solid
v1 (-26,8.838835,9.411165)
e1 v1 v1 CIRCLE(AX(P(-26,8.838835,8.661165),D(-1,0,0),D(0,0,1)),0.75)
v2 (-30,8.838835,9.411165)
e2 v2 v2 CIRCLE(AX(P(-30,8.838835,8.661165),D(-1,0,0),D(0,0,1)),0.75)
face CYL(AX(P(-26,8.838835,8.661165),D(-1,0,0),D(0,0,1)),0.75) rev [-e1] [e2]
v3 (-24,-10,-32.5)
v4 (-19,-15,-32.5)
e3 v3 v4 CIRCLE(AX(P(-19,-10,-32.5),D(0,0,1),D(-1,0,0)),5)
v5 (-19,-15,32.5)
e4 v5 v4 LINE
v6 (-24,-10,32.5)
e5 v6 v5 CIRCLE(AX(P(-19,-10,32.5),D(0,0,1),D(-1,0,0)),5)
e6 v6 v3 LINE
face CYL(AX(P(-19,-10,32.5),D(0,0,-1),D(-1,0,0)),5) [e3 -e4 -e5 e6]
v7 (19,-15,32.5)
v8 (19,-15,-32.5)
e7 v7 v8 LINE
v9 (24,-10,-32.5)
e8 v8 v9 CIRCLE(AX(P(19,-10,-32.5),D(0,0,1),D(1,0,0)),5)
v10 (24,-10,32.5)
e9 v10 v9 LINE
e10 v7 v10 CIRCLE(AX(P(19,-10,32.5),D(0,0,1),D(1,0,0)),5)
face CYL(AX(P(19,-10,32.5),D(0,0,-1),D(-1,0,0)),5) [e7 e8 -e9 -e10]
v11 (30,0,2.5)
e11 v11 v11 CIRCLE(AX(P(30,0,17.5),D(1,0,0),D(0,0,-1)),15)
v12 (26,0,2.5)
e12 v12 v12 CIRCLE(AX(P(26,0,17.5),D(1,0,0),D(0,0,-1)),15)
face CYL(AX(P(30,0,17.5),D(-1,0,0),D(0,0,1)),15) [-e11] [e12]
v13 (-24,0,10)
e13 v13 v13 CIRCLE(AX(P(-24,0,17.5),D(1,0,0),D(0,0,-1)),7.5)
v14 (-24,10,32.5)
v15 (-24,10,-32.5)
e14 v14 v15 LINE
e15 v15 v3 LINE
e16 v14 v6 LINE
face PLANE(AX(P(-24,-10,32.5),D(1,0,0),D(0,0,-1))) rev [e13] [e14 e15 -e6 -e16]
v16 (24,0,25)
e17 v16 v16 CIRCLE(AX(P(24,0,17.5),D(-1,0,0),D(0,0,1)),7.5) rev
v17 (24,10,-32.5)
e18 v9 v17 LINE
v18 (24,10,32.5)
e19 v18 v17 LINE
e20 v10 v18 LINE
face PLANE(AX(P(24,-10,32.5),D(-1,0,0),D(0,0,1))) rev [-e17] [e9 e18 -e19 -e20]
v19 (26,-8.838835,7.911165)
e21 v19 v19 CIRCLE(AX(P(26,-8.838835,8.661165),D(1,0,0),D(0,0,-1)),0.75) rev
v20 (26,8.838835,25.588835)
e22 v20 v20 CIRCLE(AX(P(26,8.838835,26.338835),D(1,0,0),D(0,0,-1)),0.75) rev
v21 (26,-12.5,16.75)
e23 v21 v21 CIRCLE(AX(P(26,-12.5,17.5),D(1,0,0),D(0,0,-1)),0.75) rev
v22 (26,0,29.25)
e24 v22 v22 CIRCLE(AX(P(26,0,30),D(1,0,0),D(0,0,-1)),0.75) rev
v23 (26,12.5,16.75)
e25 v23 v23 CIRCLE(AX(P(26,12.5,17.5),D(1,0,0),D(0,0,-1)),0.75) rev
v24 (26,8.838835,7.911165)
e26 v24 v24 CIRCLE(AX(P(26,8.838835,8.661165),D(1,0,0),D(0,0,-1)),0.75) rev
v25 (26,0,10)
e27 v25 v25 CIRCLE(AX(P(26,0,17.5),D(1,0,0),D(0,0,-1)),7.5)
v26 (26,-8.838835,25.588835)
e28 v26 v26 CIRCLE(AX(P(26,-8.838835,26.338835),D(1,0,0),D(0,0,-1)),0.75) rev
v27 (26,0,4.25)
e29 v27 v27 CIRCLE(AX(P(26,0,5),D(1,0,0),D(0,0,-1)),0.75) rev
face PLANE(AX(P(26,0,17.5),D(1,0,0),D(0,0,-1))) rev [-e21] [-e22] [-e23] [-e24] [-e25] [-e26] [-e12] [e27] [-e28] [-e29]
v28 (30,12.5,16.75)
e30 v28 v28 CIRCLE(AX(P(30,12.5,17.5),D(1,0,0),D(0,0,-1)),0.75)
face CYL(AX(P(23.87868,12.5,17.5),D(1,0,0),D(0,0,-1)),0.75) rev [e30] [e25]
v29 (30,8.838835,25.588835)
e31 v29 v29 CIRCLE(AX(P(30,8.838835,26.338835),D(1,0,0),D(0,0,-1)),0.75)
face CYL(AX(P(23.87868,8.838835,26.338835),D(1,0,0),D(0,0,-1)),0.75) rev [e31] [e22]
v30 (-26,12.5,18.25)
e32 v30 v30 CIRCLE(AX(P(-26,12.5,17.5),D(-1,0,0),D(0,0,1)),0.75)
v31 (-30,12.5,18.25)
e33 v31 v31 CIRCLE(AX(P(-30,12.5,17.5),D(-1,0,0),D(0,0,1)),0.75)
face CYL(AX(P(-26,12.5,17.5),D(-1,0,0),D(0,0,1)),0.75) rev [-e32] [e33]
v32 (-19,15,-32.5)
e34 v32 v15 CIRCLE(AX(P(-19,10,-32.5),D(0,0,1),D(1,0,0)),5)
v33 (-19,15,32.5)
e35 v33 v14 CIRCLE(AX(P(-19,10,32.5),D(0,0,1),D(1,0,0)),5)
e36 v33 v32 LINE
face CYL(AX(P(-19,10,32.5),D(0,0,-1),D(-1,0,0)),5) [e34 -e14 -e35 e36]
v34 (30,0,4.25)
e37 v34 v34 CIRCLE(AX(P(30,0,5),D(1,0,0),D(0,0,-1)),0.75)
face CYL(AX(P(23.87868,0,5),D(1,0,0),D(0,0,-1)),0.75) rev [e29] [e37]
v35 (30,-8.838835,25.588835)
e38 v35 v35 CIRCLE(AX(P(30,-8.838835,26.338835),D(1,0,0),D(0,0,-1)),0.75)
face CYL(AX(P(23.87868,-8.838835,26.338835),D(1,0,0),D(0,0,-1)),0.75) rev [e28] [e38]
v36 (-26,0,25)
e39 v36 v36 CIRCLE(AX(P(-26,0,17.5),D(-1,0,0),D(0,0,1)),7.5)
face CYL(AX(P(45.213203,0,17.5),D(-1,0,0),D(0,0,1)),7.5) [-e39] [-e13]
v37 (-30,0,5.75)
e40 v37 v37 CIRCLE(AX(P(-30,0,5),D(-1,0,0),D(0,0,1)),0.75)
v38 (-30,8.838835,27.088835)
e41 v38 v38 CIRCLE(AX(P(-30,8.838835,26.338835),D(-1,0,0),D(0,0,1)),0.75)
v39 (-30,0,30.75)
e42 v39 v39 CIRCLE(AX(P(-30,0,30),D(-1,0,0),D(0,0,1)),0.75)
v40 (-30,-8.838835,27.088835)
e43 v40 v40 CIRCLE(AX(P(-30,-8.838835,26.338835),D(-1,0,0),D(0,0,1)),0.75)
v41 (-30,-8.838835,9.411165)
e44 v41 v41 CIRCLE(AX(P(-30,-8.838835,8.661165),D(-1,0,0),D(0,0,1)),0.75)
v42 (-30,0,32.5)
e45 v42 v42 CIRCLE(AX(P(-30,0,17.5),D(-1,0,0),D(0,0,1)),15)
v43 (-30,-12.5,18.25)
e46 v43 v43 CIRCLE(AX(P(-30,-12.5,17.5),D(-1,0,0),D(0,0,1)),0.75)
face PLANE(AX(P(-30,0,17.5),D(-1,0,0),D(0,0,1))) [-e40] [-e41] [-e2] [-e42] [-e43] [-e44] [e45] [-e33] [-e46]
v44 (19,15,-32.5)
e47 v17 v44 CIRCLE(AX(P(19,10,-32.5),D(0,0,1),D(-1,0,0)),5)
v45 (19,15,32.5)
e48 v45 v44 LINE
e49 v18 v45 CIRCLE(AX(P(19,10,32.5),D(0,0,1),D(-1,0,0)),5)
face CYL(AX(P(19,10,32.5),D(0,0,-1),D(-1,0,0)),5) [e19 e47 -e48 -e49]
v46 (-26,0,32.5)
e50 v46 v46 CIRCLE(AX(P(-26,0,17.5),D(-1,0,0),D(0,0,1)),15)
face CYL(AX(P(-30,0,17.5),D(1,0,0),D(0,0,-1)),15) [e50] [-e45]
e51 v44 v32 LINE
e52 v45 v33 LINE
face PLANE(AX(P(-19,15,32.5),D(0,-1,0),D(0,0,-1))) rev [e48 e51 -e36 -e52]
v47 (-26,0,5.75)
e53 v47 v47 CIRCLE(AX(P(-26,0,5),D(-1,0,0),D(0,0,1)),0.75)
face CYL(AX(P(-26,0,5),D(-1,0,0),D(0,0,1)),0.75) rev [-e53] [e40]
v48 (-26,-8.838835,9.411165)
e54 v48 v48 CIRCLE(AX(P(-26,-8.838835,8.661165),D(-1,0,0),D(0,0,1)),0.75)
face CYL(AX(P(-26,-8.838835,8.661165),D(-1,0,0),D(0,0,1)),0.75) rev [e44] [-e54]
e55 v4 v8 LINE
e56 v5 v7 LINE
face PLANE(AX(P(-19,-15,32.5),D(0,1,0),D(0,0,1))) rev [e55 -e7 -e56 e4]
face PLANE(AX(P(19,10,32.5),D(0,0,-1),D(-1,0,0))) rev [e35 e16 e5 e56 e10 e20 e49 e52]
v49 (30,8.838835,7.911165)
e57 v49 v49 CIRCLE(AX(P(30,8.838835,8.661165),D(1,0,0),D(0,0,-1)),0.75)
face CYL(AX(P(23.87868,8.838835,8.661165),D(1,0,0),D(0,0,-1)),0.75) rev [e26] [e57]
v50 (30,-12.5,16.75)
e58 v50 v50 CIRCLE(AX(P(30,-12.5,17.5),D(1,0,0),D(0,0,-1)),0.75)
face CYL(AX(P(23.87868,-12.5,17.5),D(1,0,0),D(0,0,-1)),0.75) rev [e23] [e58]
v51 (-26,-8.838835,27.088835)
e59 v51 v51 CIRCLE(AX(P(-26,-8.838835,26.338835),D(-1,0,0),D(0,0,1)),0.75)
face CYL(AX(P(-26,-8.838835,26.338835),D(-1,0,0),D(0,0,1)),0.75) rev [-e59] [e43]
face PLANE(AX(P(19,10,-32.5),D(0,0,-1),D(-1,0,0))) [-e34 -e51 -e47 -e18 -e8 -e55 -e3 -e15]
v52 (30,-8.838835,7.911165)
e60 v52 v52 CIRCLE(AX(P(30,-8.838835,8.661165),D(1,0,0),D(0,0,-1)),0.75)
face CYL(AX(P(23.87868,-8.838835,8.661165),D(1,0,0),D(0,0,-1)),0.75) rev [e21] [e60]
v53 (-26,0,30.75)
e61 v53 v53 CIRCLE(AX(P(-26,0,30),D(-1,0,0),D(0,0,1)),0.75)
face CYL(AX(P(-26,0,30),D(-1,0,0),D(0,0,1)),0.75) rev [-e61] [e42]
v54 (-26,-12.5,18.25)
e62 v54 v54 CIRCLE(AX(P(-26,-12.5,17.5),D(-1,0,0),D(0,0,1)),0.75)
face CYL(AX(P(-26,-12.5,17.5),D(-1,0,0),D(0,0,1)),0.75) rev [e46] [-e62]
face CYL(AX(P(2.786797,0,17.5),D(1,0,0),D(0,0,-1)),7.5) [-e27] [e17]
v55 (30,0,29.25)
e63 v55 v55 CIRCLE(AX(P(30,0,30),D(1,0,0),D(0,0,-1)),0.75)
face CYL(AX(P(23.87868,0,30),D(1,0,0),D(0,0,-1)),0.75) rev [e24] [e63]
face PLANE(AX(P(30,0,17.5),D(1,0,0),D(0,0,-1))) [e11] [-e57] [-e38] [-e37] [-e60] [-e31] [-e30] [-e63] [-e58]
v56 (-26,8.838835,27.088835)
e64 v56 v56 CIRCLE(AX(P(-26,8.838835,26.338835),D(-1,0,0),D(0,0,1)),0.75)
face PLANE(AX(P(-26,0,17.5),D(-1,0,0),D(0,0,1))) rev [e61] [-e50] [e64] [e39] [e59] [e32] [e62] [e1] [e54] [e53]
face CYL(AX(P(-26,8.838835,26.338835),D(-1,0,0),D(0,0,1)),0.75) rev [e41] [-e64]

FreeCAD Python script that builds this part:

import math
import FreeCAD as App
import Part
import Sketcher

V = App.Vector

doc = App.newDocument("Part")
body = doc.addObject("PartDesign::Body", "Body")

# Sketch on XY plane
sketch1 = doc.addObject("Sketcher::SketchObject", "Sketch")
body.addObject(sketch1)
sketch1.AttachmentSupport = (doc.XY_Plane, [""])
sketch1.MapMode = "FlatFace"
sketch1.addGeometry([
    Part.LineSegment(V(-19, -15, 0), V(19, -15, 0)),  # 0
    Part.ArcOfCircle(Part.Circle(V(19, -10, 0), V(0, 0, 1), 5), math.radians(-90), math.radians(0)),  # 1
    Part.LineSegment(V(24, -10, 0), V(24, 10, 0)),  # 2
    Part.ArcOfCircle(Part.Circle(V(19, 10, 0), V(0, 0, 1), 5), math.radians(0), math.radians(90)),  # 3
    Part.LineSegment(V(19, 15, 0), V(-19, 15, 0)),  # 4
    Part.ArcOfCircle(Part.Circle(V(-19, 10, 0), V(0, 0, 1), 5), math.radians(90), math.radians(180)),  # 5
    Part.LineSegment(V(-24, 10, 0), V(-24, -10, 0)),  # 6
    Part.ArcOfCircle(Part.Circle(V(-19, -10, 0), V(0, 0, 1), 5), math.radians(180), math.radians(270)),  # 7
], False)
sketch1.addConstraint([
    Sketcher.Constraint("Tangent", 0, 2, 1, 1),
    Sketcher.Constraint("Tangent", 1, 2, 2, 1),
    Sketcher.Constraint("Tangent", 2, 2, 3, 1),
    Sketcher.Constraint("Tangent", 3, 2, 4, 1),
    Sketcher.Constraint("Tangent", 4, 2, 5, 1),
    Sketcher.Constraint("Tangent", 5, 2, 6, 1),
    Sketcher.Constraint("Tangent", 6, 2, 7, 1),
    Sketcher.Constraint("Tangent", 7, 2, 0, 1),
    Sketcher.Constraint("Horizontal", 0),
    Sketcher.Constraint("Vertical", 2),
    Sketcher.Constraint("Horizontal", 4),
    Sketcher.Constraint("Vertical", 6),
    Sketcher.Constraint("Equal", 1, 3),
    Sketcher.Constraint("Equal", 3, 5),
    Sketcher.Constraint("Equal", 5, 7),
    Sketcher.Constraint("Symmetric", 1, 3, 5, 3, -1, 1),
    Sketcher.Constraint("Radius", 1, 5.0),
    Sketcher.Constraint("DistanceX", 0, 1, 0, 2, 38.0),
    Sketcher.Constraint("DistanceY", 2, 1, 2, 2, 20.0),
])
pad1 = doc.addObject("PartDesign::Pad", "Pad")
body.addObject(pad1)
pad1.Profile = sketch1
pad1.Length = 65
pad1.Midplane = True
body2 = doc.addObject("PartDesign::Body", "Body001")

# Sketch on YZ plane
sketch2 = doc.addObject("Sketcher::SketchObject", "Sketch001")
body2.addObject(sketch2)
sketch2.AttachmentSupport = (doc.getObject("YZ_Plane001"), [""])
sketch2.MapMode = "FlatFace"
sketch2.AttachmentOffset = App.Placement(V(0, 0, 26), App.Rotation())
sketch2.addGeometry(Part.Circle(V(0, 18, 0), V(0, 0, 1), 15), False)
sketch2.addConstraint([
    Sketcher.Constraint("PointOnObject", 0, 3, -2),
    Sketcher.Constraint("Diameter", 0, 30.0),
    Sketcher.Constraint("DistanceY", -1, 1, 0, 3, 17.5),
])
pad2 = doc.addObject("PartDesign::Pad", "Pad001")
body2.addObject(pad2)
pad2.Profile = sketch2
pad2.Length = 4
body.AllowCompound = True
doc.recompute()

boolean = doc.addObject("PartDesign::Boolean", "Boolean")
body.addObject(boolean)
boolean.Type = "Fuse"
boolean.addObjects([body2])

# Sketch on YZ plane
sketch3 = doc.addObject("Sketcher::SketchObject", "Sketch002")
body.addObject(sketch3)
sketch3.AttachmentSupport = (doc.YZ_Plane, [""])
sketch3.MapMode = "FlatFace"
sketch3.AttachmentOffset = App.Placement(V(0, 0, 26), App.Rotation())
sketch3.addGeometry(Part.Circle(V(0, 18, 0), V(0, 0, 1), 8), False)
sketch3.addConstraint([
    Sketcher.Constraint("PointOnObject", 0, 3, -2),
    Sketcher.Constraint("Diameter", 0, 15.0),
    Sketcher.Constraint("DistanceY", -1, 1, 0, 3, 17.5),
])
pad3 = doc.addObject("PartDesign::Pad", "Pad002")
body.addObject(pad3)
pad3.Profile = sketch3
pad3.Length = 50
pad3.Reversed = True
doc.recompute()

mirrored = doc.addObject("PartDesign::Mirrored", "Mirrored")
body.addObject(mirrored)
mirrored.Originals = [pad3]
mirrored.MirrorPlane = (doc.YZ_Plane, [""])
body.Tip = mirrored

# Sketch on YZ plane
sketch4 = doc.addObject("Sketcher::SketchObject", "Sketch003")
body.addObject(sketch4)
sketch4.AttachmentSupport = (doc.YZ_Plane, [""])
sketch4.MapMode = "FlatFace"
sketch4.AttachmentOffset = App.Placement(V(0, 0, -26), App.Rotation())
sketch4.addGeometry(Part.Circle(V(0, 18, 0), V(0, 0, 1), 15), False)
sketch4.addConstraint([
    Sketcher.Constraint("PointOnObject", 0, 3, -2),
    Sketcher.Constraint("Diameter", 0, 30.0),
    Sketcher.Constraint("DistanceY", -1, 1, 0, 3, 17.5),
])
pad4 = doc.addObject("PartDesign::Pad", "Pad003")
body.addObject(pad4)
pad4.Profile = sketch4
pad4.Length = 4
pad4.Reversed = True

# Sketch on YZ plane
sketch5 = doc.addObject("Sketcher::SketchObject", "Sketch004")
body.addObject(sketch5)
sketch5.AttachmentSupport = (doc.YZ_Plane, [""])
sketch5.MapMode = "FlatFace"
sketch5.AttachmentOffset = App.Placement(V(0, 0, 30), App.Rotation())
sketch5.addGeometry([
    Part.Circle(V(12.5, 17.5, 0), V(0, 0, 1), 0.8),  # 0
    Part.Circle(V(8.8, 8.7, 0), V(0, 0, 1), 0.8),  # 1
    Part.Circle(V(0, 5, 0), V(0, 0, 1), 0.8),  # 2
    Part.Circle(V(-8.8, 8.7, 0), V(0, 0, 1), 0.8),  # 3
    Part.Circle(V(-12.5, 17.5, 0), V(0, 0, 1), 0.8),  # 4
    Part.Circle(V(-8.8, 26.3, 0), V(0, 0, 1), 0.8),  # 5
    Part.Circle(V(0, 30, 0), V(0, 0, 1), 0.8),  # 6
    Part.Circle(V(8.8, 26.3, 0), V(0, 0, 1), 0.8),  # 7
], False)
sketch5.addConstraint([
    Sketcher.Constraint("Equal", 0, 1),
    Sketcher.Constraint("Equal", 1, 2),
    Sketcher.Constraint("Equal", 2, 3),
    Sketcher.Constraint("Equal", 3, 4),
    Sketcher.Constraint("Equal", 4, 5),
    Sketcher.Constraint("Equal", 5, 6),
    Sketcher.Constraint("Equal", 6, 7),
    Sketcher.Constraint("Symmetric", 1, 3, 3, 3, -2),
    Sketcher.Constraint("Symmetric", 0, 3, 4, 3, -2),
    Sketcher.Constraint("Symmetric", 5, 3, 7, 3, -2),
    Sketcher.Constraint("PointOnObject", 2, 3, -2),
    Sketcher.Constraint("PointOnObject", 6, 3, -2),
    Sketcher.Constraint("Vertical", 3, 3, 5, 3),
    Sketcher.Constraint("Diameter", 0, 1.5),
    Sketcher.Constraint("DistanceY", -1, 1, 2, 3, 5.0),
    Sketcher.Constraint("DistanceY", -1, 1, 6, 3, 30.0),
    Sketcher.Constraint("DistanceX", 4, 3, 0, 3, 25.0),
    Sketcher.Constraint("DistanceY", -1, 1, 0, 3, 17.5),
    Sketcher.Constraint("DistanceX", 3, 3, 1, 3, 17.67767),
    Sketcher.Constraint("DistanceY", 3, 3, 5, 3, 17.67767),
    Sketcher.Constraint("DistanceY", -1, 1, 1, 3, 8.661165),
])
pocket1 = doc.addObject("PartDesign::Pocket", "Pocket")
body.addObject(pocket1)
pocket1.Profile = sketch5
pocket1.Length = 4

# Sketch on YZ plane
sketch6 = doc.addObject("Sketcher::SketchObject", "Sketch005")
body.addObject(sketch6)
sketch6.AttachmentSupport = (doc.YZ_Plane, [""])
sketch6.MapMode = "FlatFace"
sketch6.AttachmentOffset = App.Placement(V(0, 0, -30), App.Rotation())
sketch6.addGeometry([
    Part.Circle(V(12.5, 17.5, 0), V(0, 0, 1), 0.8),  # 0
    Part.Circle(V(8.8, 26.3, 0), V(0, 0, 1), 0.8),  # 1
    Part.Circle(V(0, 30, 0), V(0, 0, 1), 0.8),  # 2
    Part.Circle(V(-8.8, 26.3, 0), V(0, 0, 1), 0.8),  # 3
    Part.Circle(V(-12.5, 17.5, 0), V(0, 0, 1), 0.8),  # 4
    Part.Circle(V(-8.8, 8.7, 0), V(0, 0, 1), 0.8),  # 5
    Part.Circle(V(0, 5, 0), V(0, 0, 1), 0.8),  # 6
    Part.Circle(V(8.8, 8.7, 0), V(0, 0, 1), 0.8),  # 7
], False)
sketch6.addConstraint([
    Sketcher.Constraint("Equal", 0, 1),
    Sketcher.Constraint("Equal", 1, 2),
    Sketcher.Constraint("Equal", 2, 3),
    Sketcher.Constraint("Equal", 3, 4),
    Sketcher.Constraint("Equal", 4, 5),
    Sketcher.Constraint("Equal", 5, 6),
    Sketcher.Constraint("Equal", 6, 7),
    Sketcher.Constraint("Symmetric", 1, 3, 3, 3, -2),
    Sketcher.Constraint("Symmetric", 0, 3, 4, 3, -2),
    Sketcher.Constraint("Symmetric", 5, 3, 7, 3, -2),
    Sketcher.Constraint("PointOnObject", 2, 3, -2),
    Sketcher.Constraint("PointOnObject", 6, 3, -2),
    Sketcher.Constraint("Vertical", 3, 3, 5, 3),
    Sketcher.Constraint("Diameter", 0, 1.5),
    Sketcher.Constraint("DistanceY", -1, 1, 2, 3, 30.0),
    Sketcher.Constraint("DistanceY", -1, 1, 6, 3, 5.0),
    Sketcher.Constraint("DistanceX", 4, 3, 0, 3, 25.0),
    Sketcher.Constraint("DistanceY", -1, 1, 0, 3, 17.5),
    Sketcher.Constraint("DistanceX", 3, 3, 1, 3, 17.67767),
    Sketcher.Constraint("DistanceY", 5, 3, 3, 3, 17.67767),
    Sketcher.Constraint("DistanceY", -1, 1, 1, 3, 26.338835),
])
pocket2 = doc.addObject("PartDesign::Pocket", "Pocket001")
body.addObject(pocket2)
pocket2.Profile = sketch6
pocket2.Length = 4
pocket2.Reversed = True

doc.recompute()
